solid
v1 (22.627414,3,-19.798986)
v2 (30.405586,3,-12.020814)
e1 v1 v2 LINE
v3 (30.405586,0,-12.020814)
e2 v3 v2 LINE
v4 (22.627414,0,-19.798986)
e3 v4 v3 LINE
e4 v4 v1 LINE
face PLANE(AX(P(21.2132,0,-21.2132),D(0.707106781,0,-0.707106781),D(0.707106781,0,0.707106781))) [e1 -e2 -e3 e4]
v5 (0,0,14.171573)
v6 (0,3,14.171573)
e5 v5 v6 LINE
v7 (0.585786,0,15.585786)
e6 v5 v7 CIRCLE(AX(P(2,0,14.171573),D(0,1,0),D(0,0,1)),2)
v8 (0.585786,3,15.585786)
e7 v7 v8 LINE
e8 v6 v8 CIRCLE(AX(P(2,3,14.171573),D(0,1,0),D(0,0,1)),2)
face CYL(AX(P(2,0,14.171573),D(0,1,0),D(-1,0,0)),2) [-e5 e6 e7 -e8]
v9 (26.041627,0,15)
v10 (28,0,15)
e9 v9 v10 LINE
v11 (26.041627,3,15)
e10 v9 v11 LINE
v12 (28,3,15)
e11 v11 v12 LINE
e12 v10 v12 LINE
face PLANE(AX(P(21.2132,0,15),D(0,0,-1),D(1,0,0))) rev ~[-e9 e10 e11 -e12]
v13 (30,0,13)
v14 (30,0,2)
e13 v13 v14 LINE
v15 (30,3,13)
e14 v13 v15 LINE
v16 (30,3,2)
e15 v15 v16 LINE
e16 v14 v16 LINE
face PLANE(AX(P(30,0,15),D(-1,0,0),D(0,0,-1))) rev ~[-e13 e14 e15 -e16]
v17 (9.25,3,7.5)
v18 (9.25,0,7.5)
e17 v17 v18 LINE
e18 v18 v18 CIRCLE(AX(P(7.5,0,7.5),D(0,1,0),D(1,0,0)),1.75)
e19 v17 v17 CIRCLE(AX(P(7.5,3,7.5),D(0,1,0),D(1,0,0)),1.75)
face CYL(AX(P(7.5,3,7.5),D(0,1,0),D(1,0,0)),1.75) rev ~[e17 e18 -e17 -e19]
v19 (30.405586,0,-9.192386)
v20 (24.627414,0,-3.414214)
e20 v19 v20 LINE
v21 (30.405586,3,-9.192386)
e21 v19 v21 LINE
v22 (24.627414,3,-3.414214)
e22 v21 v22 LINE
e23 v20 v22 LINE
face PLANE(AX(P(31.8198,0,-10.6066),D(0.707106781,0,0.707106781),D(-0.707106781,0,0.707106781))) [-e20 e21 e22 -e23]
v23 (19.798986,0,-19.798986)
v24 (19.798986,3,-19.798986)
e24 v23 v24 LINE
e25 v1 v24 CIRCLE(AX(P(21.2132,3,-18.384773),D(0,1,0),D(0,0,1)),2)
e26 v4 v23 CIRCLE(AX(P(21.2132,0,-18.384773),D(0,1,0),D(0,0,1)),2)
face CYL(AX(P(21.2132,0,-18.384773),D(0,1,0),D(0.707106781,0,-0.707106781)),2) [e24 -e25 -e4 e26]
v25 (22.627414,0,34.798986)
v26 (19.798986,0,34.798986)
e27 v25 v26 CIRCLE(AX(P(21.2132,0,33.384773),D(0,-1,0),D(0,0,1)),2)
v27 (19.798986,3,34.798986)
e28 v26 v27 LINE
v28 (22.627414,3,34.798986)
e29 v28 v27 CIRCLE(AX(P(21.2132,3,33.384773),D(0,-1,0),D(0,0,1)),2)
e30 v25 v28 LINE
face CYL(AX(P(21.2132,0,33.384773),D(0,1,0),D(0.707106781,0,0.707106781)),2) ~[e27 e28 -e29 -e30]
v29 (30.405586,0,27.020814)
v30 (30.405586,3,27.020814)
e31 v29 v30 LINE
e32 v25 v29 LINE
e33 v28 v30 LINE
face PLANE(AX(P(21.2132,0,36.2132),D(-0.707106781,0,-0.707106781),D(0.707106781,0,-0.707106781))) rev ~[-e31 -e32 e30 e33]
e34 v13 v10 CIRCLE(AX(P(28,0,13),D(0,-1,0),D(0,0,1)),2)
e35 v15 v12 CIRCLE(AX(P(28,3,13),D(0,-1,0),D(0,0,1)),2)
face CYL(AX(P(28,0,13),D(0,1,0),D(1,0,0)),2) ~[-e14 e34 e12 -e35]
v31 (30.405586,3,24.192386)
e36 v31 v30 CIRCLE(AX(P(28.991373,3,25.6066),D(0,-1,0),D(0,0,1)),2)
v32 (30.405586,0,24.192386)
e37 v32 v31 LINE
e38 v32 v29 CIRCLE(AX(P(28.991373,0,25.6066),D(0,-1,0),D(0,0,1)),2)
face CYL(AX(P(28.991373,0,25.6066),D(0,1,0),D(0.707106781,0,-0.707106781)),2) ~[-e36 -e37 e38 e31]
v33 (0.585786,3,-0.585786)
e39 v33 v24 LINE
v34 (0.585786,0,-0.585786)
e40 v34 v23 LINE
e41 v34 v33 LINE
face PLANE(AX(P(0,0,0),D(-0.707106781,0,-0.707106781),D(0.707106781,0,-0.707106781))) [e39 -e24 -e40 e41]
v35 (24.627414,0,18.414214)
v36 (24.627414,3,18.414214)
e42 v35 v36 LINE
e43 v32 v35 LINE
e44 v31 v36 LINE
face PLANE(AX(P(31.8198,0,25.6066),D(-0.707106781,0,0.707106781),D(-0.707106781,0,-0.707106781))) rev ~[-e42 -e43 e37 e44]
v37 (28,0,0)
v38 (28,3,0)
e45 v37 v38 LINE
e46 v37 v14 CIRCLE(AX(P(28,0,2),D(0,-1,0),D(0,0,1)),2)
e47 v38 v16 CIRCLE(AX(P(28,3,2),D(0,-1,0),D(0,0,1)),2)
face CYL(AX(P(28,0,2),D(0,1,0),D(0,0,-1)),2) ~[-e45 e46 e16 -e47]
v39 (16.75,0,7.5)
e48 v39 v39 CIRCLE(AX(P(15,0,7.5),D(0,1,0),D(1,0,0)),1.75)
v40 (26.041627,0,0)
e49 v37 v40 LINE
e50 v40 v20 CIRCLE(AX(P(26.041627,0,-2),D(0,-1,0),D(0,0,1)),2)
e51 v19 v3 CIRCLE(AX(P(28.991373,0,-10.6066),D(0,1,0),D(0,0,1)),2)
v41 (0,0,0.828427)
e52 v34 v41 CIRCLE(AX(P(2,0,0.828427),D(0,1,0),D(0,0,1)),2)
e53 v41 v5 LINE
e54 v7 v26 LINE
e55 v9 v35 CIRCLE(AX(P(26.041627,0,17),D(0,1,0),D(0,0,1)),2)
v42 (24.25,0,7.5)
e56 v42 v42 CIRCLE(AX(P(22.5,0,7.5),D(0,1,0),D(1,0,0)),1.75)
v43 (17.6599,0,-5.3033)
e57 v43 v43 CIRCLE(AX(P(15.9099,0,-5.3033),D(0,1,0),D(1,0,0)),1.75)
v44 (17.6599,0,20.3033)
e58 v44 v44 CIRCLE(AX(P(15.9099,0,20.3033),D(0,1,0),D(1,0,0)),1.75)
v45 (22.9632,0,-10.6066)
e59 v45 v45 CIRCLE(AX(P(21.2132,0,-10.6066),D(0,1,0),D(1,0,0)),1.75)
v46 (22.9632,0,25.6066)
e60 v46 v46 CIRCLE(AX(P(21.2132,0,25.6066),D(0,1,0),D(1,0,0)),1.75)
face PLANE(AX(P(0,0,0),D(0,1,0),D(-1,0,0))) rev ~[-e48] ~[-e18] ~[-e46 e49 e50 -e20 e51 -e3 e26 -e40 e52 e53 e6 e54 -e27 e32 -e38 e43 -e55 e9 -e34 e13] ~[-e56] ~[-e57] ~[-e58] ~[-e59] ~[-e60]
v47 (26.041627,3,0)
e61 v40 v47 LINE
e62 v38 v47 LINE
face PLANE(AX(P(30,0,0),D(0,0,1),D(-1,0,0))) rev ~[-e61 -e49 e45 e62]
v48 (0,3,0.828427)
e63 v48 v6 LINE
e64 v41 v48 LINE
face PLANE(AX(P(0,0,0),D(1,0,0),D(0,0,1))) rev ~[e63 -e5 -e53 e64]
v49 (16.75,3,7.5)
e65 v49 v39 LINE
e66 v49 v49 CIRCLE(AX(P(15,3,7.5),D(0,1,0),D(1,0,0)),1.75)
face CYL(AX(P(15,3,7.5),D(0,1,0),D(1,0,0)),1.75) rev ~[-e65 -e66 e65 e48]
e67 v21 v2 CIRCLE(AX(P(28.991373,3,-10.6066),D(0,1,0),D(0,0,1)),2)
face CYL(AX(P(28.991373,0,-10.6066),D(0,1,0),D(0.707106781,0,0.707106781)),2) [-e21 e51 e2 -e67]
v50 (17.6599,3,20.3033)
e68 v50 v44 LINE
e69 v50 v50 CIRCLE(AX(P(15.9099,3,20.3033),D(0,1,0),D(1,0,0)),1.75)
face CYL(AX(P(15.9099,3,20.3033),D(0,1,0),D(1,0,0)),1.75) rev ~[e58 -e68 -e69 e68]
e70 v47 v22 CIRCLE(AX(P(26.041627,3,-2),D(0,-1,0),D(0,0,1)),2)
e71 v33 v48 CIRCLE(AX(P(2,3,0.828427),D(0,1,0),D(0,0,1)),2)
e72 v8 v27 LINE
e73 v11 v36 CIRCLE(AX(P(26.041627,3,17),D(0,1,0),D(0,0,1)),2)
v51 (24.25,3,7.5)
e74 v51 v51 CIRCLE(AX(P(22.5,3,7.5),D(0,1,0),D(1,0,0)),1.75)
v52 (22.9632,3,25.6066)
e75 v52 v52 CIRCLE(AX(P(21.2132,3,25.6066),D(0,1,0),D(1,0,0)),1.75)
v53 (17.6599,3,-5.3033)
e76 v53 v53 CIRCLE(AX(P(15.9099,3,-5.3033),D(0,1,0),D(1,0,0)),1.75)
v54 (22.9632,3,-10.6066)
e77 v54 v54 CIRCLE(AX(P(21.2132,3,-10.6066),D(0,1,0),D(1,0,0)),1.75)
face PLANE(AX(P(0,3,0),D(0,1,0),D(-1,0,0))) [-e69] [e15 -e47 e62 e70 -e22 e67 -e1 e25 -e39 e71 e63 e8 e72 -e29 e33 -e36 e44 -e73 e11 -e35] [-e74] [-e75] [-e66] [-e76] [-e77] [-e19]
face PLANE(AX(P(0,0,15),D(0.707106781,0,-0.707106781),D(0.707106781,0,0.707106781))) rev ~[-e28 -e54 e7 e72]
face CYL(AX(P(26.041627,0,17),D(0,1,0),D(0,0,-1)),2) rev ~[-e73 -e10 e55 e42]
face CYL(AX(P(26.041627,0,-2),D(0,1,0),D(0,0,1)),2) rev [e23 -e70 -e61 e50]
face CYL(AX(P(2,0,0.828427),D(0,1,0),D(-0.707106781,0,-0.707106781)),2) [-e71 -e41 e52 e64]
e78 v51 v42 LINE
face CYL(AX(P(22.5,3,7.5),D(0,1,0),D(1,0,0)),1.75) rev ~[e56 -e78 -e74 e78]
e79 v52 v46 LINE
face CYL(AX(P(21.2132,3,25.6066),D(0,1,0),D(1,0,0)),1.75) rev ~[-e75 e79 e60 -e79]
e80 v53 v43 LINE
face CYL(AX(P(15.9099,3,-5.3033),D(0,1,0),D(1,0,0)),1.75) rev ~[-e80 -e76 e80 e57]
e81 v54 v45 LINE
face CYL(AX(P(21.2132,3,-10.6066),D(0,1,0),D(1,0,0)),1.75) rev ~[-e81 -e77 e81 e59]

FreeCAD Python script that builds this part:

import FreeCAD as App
import Part
import Sketcher

V = App.Vector
Q = App.Units.Quantity


def edges_at(feature, points):
    """Names of the edges that pass closest to the given points."""
    edges = feature.Shape.Edges
    near = lambda p: min(range(len(edges)), key=lambda i: edges[i].distToShape(Part.Vertex(*p))[0])
    return sorted({f"Edge{near(p) + 1}" for p in points})

doc = App.newDocument("Part")
params = doc.addObject("Spreadsheet::Sheet", "Params")
for row, (alias, value) in enumerate([
    ("sketch1_height", "15 mm"),
    ("sketch1_length", "15 mm"),
    ("pad1_length", "3 mm"),
    ("sketch2_diameter", "3.5 mm"),
    ("fillet_radius", "2 mm"),
], start=1):
    params.set(f"A{row}", alias)
    params.set(f"B{row}", "=" + value)
    params.setAlias(f"B{row}", alias)

body = doc.addObject("PartDesign::Body", "Body")

# Sketch on XZ plane
sketch1 = body.newObject("Sketcher::SketchObject", "Sketch")
sketch1.AttachmentSupport = (doc.getObject("XZ_Plane"), [""])
sketch1.MapMode = "FlatFace"
sketch1.addGeometry(Part.LineSegment(V(30, 0, 0), V(21, 0, 0)), False)
sketch1.addGeometry(Part.LineSegment(V(21, 0, 0), V(32, -11, 0)), False)
sketch1.addGeometry(Part.LineSegment(V(32, -11, 0), V(21, -21, 0)), False)
sketch1.addGeometry(Part.LineSegment(V(21, -21, 0), V(0, 0, 0)), False)
sketch1.addGeometry(Part.LineSegment(V(0, 0, 0), V(0, 15, 0)), False)
sketch1.addGeometry(Part.LineSegment(V(0, 15, 0), V(21, 36, 0)), False)
sketch1.addGeometry(Part.LineSegment(V(21, 36, 0), V(32, 26, 0)), False)
sketch1.addGeometry(Part.LineSegment(V(32, 26, 0), V(21, 15, 0)), False)
sketch1.addGeometry(Part.LineSegment(V(21, 15, 0), V(30, 15, 0)), False)
sketch1.addGeometry(Part.LineSegment(V(30, 15, 0), V(30, 0, 0)), False)
sketch1.addConstraint(Sketcher.Constraint("Coincident", 0, 2, 1, 1))
sketch1.addConstraint(Sketcher.Constraint("Coincident", 1, 2, 2, 1))
sketch1.addConstraint(Sketcher.Constraint("Coincident", 2, 2, 3, 1))
sketch1.addConstraint(Sketcher.Constraint("Coincident", 3, 2, 4, 1))
sketch1.addConstraint(Sketcher.Constraint("Coincident", 4, 2, 5, 1))
sketch1.addConstraint(Sketcher.Constraint("Coincident", 5, 2, 6, 1))
sketch1.addConstraint(Sketcher.Constraint("Coincident", 6, 2, 7, 1))
sketch1.addConstraint(Sketcher.Constraint("Coincident", 7, 2, 8, 1))
sketch1.addConstraint(Sketcher.Constraint("Coincident", 8, 2, 9, 1))
sketch1.addConstraint(Sketcher.Constraint("Coincident", 9, 2, 0, 1))
sketch1.addConstraint(Sketcher.Constraint("Horizontal", 0))
sketch1.addConstraint(Sketcher.Constraint("Vertical", 4))
sketch1.addConstraint(Sketcher.Constraint("Horizontal", 8))
sketch1.addConstraint(Sketcher.Constraint("Vertical", 9))
sketch1.addConstraint(Sketcher.Constraint("Coincident", 3, 2, -1, 1))
sketch1.addConstraint(Sketcher.Constraint("PointOnObject", 0, 2, -1))
sketch1.addConstraint(Sketcher.Constraint("Perpendicular", 1, 2))
sketch1.addConstraint(Sketcher.Constraint("Perpendicular", 2, 3))
sketch1.addConstraint(Sketcher.Constraint("Perpendicular", 3, 5))
sketch1.addConstraint(Sketcher.Constraint("Perpendicular", 5, 6))
sketch1.addConstraint(Sketcher.Constraint("Perpendicular", 6, 7))
sketch1.addConstraint(Sketcher.Constraint("Horizontal", 4, 2, 7, 2))
sketch1.addConstraint(Sketcher.Constraint("Vertical", 0, 2, 2, 2))
sketch1.addConstraint(Sketcher.Constraint("Vertical", 2, 2, 5, 2))
sketch1.addConstraint(Sketcher.Constraint("Vertical", 1, 2, 6, 2))
sketch1.addConstraint(Sketcher.Constraint("Vertical", 5, 2, 7, 2))
sketch1.addConstraint(Sketcher.Constraint("DistanceY", 4, 1, 4, 2, Q("15 mm")))
sketch1.addConstraint(Sketcher.Constraint("Distance", 1, Q("15 mm")))
sketch1.addConstraint(Sketcher.Constraint("DistanceX", -1, 1, 8, 2, Q("30 mm")))
sketch1.setExpression("Constraints[26]", "Params.sketch1_height")
sketch1.setExpression("Constraints[27]", "Params.sketch1_length")
pad1 = body.newObject("PartDesign::Pad", "Pad")
pad1.Profile = sketch1
pad1.setExpression("Length", "Params.pad1_length")
pad1.Reversed = True

# Sketch on XZ plane
sketch2 = body.newObject("Sketcher::SketchObject", "Sketch001")
sketch2.AttachmentSupport = (doc.getObject("XZ_Plane"), [""])
sketch2.MapMode = "FlatFace"
sketch2.AttachmentOffset = App.Placement(V(0, 0, -3), App.Rotation())
sketch2.addGeometry(Part.Circle(V(21.2, 25.6, 0), V(0, 0, 1), 1.8), False)
sketch2.addGeometry(Part.Circle(V(15.9, 20.3, 0), V(0, 0, 1), 1.8), False)
sketch2.addGeometry(Part.Circle(V(15, 7.5, 0), V(0, 0, 1), 1.8), False)
sketch2.addGeometry(Part.Circle(V(21.2, -10.6, 0), V(0, 0, 1), 1.8), False)
sketch2.addGeometry(Part.Circle(V(15.9, -5.3, 0), V(0, 0, 1), 1.8), False)
sketch2.addGeometry(Part.Circle(V(7.5, 7.5, 0), V(0, 0, 1), 1.8), False)
sketch2.addGeometry(Part.Circle(V(22.5, 7.5, 0), V(0, 0, 1), 1.8), False)
sketch2.addConstraint(Sketcher.Constraint("Equal", 0, 1))
sketch2.addConstraint(Sketcher.Constraint("Equal", 1, 2))
sketch2.addConstraint(Sketcher.Constraint("Equal", 2, 3))
sketch2.addConstraint(Sketcher.Constraint("Equal", 3, 4))
sketch2.addConstraint(Sketcher.Constraint("Equal", 4, 5))
sketch2.addConstraint(Sketcher.Constraint("Equal", 5, 6))
sketch2.addConstraint(Sketcher.Constraint("Horizontal", 2, 3, 5, 3))
sketch2.addConstraint(Sketcher.Constraint("Horizontal", 5, 3, 6, 3))
sketch2.addConstraint(Sketcher.Constraint("Vertical", 0, 3, 3, 3))
sketch2.addConstraint(Sketcher.Constraint("Vertical", 1, 3, 4, 3))
sketch2.addConstraint(Sketcher.Constraint("Diameter", 0, Q("3.5 mm")))
sketch2.addConstraint(Sketcher.Constraint("DistanceX", -1, 1, 2, 3, Q("15 mm")))
sketch2.addConstraint(Sketcher.Constraint("DistanceX", 5, 3, 6, 3, Q("15 mm")))
sketch2.addConstraint(Sketcher.Constraint("DistanceY", -1, 1, 2, 3, Q("7.5 mm")))
sketch2.addConstraint(Sketcher.Constraint("DistanceX", -1, 1, 5, 3, Q("7.5 mm")))
sketch2.addConstraint(Sketcher.Constraint("DistanceX", -1, 1, 1, 3, Q("15.91 mm")))
sketch2.addConstraint(Sketcher.Constraint("DistanceY", 3, 3, 1, 3, Q("30.91 mm")))
sketch2.addConstraint(Sketcher.Constraint("DistanceY", 4, 3, 0, 3, Q("30.91 mm")))
sketch2.addConstraint(Sketcher.Constraint("DistanceX", -1, 1, 0, 3, Q("21.2132 mm")))
sketch2.addConstraint(Sketcher.Constraint("DistanceY", -1, 1, 0, 3, Q("25.6066 mm")))
sketch2.addConstraint(Sketcher.Constraint("DistanceY", -1, 1, 1, 3, Q("20.3033 mm")))
sketch2.setExpression("Constraints[10]", "Params.sketch2_diameter")
pocket1 = body.newObject("PartDesign::Pocket", "Pocket")
pocket1.Profile = sketch2
pocket1.Type = "ThroughAll"
pocket1.Reversed = True
doc.recompute()

fillet = body.newObject("PartDesign::Fillet", "Fillet")
fillet.Base = (pocket1, edges_at(pocket1, [
    (21.213, 1.5, -21.213),
    (31.82, 1.5, -10.607),
    (21.213, 1.5, 0),
    (30, 1.5, 0),
    (30, 1.5, 15),
    (21.213, 1.5, 15),
    (31.82, 1.5, 25.607),
    (21.213, 1.5, 36.213),
    (0, 1.5, 15),
    (0, 1.5, 0),
]))
fillet.setExpression("Radius", "Params.fillet_radius")

doc.recompute()
